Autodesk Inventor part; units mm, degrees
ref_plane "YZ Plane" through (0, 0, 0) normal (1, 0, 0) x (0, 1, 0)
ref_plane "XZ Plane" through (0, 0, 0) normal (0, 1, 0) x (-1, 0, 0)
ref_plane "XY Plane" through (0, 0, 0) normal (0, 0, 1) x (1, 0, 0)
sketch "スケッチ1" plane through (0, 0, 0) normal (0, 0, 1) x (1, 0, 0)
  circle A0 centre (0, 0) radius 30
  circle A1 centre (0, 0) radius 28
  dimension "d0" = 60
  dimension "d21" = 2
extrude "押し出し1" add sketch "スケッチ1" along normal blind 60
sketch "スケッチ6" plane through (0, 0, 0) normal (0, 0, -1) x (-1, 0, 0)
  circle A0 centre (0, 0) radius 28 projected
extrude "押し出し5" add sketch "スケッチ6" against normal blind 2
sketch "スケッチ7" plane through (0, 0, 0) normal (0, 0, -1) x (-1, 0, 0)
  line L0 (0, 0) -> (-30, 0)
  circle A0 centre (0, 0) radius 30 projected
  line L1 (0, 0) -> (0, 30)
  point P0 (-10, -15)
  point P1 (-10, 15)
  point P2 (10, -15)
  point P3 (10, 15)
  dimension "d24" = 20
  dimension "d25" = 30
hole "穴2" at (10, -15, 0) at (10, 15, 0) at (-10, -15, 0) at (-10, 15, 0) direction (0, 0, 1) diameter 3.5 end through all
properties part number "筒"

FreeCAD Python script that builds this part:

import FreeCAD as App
import Part
import Sketcher
from FreeCAD import Vector

doc = App.newDocument("Part")
body = doc.addObject("PartDesign::Body", "Body")

# Sketch on XY plane
sketch1 = body.newObject("Sketcher::SketchObject", "Sketch")
sketch1.AttachmentSupport = (doc.getObject("XY_Plane"), [""])
sketch1.MapMode = "FlatFace"
sketch1.addGeometry(Part.Circle(Vector(0, 0, 0), Vector(0, 0, 1), 30), False)
sketch1.addGeometry(Part.Circle(Vector(0, 0, 0), Vector(0, 0, 1), 28), False)
sketch1.addConstraint(Sketcher.Constraint("Coincident", 0, 3, -1, 1))
sketch1.addConstraint(Sketcher.Constraint("Coincident", 1, 3, -1, 1))
sketch1.addConstraint(Sketcher.Constraint("Diameter", 0, 60.0))
sketch1.addConstraint(Sketcher.Constraint("Diameter", 1, 56.0))
pad1 = body.newObject("PartDesign::Pad", "Pad")
pad1.Profile = sketch1
pad1.Length = 60

# Sketch on XY plane
sketch2 = body.newObject("Sketcher::SketchObject", "Sketch001")
sketch2.AttachmentSupport = (doc.getObject("XY_Plane"), [""])
sketch2.MapMode = "FlatFace"
sketch2.addGeometry(Part.Circle(Vector(0, 0, 0), Vector(0, 0, 1), 28), False)
sketch2.addConstraint(Sketcher.Constraint("Coincident", 0, 3, -1, 1))
sketch2.addConstraint(Sketcher.Constraint("Diameter", 0, 56.0))
pad2 = body.newObject("PartDesign::Pad", "Pad001")
pad2.Profile = sketch2
pad2.Length = 2

# Sketch on XY plane
sketch3 = body.newObject("Sketcher::SketchObject", "Sketch002")
sketch3.AttachmentSupport = (doc.getObject("XY_Plane"), [""])
sketch3.MapMode = "FlatFace"
sketch3.addGeometry(Part.Circle(Vector(10, -15, 0), Vector(0, 0, 1), 1.8), False)
sketch3.addGeometry(Part.Circle(Vector(10, 15, 0), Vector(0, 0, 1), 1.8), False)
sketch3.addGeometry(Part.Circle(Vector(-10, -15, 0), Vector(0, 0, 1), 1.8), False)
sketch3.addGeometry(Part.Circle(Vector(-10, 15, 0), Vector(0, 0, 1), 1.8), False)
sketch3.addConstraint(Sketcher.Constraint("Equal", 0, 1))
sketch3.addConstraint(Sketcher.Constraint("Equal", 1, 2))
sketch3.addConstraint(Sketcher.Constraint("Equal", 2, 3))
sketch3.addConstraint(Sketcher.Constraint("Symmetric", 1, 3, 2, 3, -1, 1))
sketch3.addConstraint(Sketcher.Constraint("Symmetric", 0, 3, 3, 3, -1, 1))
sketch3.addConstraint(Sketcher.Constraint("Symmetric", 0, 3, 2, 3, -2))
sketch3.addConstraint(Sketcher.Constraint("Diameter", 0, 3.5))
sketch3.addConstraint(Sketcher.Constraint("DistanceX", -1, 1, 0, 3, 10.0))
sketch3.addConstraint(Sketcher.Constraint("DistanceY", 0, 3, -1, 1, 15.0))
doc.recompute()
hole = body.newObject("PartDesign::Hole", "Hole")
hole.Profile = sketch3
hole.ThreadType = "None"
hole.Diameter = 3.5
hole.DepthType = "ThroughAll"
hole.Reversed = True

doc.recompute()
